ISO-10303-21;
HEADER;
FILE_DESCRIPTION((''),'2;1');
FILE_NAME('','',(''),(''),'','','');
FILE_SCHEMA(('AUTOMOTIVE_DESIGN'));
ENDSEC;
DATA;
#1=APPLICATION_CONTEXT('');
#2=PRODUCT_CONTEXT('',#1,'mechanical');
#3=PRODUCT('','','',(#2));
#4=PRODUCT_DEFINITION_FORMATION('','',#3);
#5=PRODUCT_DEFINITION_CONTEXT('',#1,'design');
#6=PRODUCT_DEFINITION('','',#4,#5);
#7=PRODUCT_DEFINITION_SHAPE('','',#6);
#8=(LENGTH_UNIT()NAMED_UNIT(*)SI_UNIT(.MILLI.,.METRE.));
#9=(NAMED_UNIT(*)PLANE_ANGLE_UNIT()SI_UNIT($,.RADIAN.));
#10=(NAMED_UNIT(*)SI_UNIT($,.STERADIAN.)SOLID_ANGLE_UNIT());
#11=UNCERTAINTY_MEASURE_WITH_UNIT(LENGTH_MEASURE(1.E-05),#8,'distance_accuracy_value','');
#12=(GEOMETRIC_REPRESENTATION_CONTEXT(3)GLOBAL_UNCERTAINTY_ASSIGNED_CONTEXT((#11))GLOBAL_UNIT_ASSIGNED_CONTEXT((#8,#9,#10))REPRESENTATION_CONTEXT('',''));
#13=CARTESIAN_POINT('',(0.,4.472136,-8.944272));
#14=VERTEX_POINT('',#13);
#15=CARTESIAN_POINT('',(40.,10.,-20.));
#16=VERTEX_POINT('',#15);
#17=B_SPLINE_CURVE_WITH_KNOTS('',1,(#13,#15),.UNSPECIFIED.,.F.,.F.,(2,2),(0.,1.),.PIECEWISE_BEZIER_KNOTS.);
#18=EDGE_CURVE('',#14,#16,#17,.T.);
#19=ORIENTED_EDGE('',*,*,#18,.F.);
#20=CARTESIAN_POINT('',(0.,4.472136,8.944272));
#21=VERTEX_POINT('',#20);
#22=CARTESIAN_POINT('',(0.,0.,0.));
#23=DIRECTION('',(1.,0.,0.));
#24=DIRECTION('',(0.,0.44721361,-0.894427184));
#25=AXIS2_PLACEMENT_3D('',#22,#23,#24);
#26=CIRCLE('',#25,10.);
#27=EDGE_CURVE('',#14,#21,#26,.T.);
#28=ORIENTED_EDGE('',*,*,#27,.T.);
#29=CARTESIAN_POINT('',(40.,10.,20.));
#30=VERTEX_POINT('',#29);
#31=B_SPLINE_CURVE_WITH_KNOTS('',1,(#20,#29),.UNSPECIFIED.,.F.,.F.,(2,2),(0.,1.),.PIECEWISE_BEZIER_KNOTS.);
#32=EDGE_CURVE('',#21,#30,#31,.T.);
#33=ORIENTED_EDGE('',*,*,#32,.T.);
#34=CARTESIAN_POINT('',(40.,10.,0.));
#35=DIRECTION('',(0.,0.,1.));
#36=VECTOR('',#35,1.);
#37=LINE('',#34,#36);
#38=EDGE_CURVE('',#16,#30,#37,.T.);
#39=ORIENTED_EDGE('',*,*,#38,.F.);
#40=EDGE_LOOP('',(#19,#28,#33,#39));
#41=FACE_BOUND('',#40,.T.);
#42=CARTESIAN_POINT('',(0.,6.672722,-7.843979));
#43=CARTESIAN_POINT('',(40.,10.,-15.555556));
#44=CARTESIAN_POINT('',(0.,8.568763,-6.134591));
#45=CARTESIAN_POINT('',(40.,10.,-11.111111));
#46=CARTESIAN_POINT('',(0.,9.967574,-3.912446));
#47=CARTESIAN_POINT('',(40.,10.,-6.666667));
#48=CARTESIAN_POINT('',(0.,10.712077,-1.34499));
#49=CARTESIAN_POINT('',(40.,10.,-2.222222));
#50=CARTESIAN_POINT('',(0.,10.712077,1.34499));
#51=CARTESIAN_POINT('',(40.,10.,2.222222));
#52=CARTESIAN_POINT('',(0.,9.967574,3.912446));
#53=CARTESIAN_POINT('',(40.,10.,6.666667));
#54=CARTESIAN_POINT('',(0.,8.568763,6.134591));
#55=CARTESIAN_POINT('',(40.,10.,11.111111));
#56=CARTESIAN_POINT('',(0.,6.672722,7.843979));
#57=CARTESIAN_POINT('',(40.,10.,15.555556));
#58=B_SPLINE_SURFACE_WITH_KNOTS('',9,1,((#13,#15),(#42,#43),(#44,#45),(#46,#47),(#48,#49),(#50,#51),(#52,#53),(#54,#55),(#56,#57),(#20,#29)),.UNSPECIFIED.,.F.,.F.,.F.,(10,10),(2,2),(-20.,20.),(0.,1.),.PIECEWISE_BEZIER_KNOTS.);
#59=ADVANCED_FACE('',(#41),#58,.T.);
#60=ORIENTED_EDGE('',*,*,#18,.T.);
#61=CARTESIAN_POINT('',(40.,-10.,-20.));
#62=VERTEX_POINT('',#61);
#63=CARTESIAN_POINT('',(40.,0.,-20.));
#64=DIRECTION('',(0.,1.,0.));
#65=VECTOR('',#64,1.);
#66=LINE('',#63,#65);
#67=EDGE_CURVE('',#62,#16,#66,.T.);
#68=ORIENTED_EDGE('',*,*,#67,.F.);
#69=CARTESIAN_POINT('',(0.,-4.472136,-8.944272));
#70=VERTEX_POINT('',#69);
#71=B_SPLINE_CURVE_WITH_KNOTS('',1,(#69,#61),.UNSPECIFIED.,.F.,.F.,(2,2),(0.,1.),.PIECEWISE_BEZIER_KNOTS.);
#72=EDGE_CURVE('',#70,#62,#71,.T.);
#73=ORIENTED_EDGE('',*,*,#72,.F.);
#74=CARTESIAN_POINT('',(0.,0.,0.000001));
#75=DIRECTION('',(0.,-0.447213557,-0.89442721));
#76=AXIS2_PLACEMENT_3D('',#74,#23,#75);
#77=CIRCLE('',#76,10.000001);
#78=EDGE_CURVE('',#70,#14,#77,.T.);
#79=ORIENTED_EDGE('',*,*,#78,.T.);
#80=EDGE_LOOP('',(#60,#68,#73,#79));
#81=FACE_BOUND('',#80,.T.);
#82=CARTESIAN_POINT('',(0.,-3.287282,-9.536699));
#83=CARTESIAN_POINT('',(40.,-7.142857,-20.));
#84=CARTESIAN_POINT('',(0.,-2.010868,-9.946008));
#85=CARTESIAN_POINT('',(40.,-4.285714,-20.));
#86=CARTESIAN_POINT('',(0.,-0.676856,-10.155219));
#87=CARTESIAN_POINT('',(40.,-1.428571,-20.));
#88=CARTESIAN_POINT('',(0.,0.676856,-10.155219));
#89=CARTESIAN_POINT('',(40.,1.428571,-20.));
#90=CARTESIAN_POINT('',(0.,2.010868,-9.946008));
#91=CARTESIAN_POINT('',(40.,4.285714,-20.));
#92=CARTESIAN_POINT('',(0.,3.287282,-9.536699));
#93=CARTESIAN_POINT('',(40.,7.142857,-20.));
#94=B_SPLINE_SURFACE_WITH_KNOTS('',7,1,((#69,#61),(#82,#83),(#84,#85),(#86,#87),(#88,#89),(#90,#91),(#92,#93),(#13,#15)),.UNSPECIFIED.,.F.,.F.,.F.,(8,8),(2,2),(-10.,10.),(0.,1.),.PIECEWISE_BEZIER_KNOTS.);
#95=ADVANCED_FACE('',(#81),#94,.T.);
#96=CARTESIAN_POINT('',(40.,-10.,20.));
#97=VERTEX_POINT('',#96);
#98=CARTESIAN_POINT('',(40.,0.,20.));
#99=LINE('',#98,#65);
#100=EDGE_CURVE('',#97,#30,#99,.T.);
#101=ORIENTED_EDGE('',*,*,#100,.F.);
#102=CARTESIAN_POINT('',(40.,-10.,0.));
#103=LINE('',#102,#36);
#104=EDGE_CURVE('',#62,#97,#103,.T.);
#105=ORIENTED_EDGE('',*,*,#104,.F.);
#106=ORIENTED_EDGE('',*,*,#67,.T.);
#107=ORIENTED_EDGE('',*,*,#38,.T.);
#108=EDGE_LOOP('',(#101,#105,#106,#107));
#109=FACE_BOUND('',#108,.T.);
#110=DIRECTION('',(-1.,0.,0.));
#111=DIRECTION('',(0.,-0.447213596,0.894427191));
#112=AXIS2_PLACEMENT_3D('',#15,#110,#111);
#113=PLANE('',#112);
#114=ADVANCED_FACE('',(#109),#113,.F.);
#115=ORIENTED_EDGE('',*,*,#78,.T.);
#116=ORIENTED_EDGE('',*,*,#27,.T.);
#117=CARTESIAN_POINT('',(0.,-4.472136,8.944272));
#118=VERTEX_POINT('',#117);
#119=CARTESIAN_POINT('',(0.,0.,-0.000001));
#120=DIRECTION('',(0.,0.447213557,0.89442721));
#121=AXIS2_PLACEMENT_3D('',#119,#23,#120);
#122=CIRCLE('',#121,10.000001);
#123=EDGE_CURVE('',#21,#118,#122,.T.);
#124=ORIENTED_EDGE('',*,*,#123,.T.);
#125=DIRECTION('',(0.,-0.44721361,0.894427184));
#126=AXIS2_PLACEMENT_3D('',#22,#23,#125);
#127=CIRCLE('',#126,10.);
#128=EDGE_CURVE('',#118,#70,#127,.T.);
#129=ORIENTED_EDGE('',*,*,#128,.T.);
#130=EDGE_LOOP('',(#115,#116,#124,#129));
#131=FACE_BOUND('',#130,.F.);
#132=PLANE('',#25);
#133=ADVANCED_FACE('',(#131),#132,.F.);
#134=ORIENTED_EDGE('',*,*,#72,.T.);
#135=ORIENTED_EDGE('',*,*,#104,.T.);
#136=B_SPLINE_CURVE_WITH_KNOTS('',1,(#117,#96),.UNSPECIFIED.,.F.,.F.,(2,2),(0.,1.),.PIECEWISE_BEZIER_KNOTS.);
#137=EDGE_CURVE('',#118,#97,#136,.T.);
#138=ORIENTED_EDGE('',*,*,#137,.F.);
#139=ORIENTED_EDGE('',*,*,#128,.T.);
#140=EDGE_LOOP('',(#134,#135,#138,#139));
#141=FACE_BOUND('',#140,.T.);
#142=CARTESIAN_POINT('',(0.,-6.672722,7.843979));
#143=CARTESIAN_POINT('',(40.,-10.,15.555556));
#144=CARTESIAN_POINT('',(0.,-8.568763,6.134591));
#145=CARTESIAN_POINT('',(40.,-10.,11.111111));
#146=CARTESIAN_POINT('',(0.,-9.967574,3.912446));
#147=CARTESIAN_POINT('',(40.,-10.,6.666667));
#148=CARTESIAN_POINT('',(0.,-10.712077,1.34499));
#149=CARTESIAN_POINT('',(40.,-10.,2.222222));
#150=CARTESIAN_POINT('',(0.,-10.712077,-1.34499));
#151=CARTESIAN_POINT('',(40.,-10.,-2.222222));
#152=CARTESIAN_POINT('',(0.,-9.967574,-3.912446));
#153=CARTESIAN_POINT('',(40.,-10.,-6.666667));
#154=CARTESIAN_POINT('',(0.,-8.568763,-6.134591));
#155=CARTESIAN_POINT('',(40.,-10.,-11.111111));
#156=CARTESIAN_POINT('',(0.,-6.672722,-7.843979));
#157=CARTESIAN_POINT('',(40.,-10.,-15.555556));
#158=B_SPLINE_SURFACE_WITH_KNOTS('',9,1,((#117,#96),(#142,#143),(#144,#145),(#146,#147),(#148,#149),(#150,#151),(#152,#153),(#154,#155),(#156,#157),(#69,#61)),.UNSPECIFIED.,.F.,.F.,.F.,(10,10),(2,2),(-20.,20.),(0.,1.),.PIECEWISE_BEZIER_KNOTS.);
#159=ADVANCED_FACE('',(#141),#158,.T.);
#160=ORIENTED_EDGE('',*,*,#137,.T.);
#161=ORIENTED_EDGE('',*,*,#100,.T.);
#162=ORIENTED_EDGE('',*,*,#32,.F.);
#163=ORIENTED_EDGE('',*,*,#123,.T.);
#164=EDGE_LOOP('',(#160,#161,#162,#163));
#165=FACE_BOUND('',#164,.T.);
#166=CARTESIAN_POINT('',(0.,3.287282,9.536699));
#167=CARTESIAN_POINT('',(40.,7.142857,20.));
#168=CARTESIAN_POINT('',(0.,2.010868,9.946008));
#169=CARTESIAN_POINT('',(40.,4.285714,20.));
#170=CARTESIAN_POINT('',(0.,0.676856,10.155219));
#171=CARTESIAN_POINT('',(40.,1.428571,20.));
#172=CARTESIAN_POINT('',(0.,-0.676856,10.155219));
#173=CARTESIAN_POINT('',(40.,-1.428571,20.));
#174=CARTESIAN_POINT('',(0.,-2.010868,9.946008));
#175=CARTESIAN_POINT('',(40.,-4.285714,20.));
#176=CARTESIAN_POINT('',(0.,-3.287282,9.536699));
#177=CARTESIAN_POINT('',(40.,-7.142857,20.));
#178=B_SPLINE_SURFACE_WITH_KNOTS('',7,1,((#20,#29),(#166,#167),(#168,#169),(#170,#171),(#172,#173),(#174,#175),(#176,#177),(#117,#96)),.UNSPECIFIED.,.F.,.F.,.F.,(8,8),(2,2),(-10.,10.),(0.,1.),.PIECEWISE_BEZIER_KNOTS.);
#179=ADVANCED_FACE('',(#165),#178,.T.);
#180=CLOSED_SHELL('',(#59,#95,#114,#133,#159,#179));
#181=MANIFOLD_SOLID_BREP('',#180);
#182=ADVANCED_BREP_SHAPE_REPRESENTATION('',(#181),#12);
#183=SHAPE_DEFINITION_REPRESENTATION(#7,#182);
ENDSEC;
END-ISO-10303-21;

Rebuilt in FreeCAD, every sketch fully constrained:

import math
import FreeCAD as App
import Part
import Sketcher
Q = App.Units.Quantity


def add_polygon(sketch, points):
    """Adds a closed chain of lines whose ends are joined by coincident constraints."""
    first, n = sketch.GeometryCount, len(points)
    for a, b in zip(points, points[1:] + points[:1]):
        sketch.addGeometry(Part.LineSegment(App.Vector(*a, 0), App.Vector(*b, 0)), False)
    for i in range(n):
        sketch.addConstraint(Sketcher.Constraint("Coincident", first + i, 2, first + (i + 1) % n, 1))

doc = App.newDocument("Part")
body = doc.addObject("PartDesign::Body", "Body")

# Sketch on YZ plane
sketch1 = body.newObject("Sketcher::SketchObject", "Sketch")
sketch1.AttachmentSupport = (doc.getObject("YZ_Plane"), [""])
sketch1.MapMode = "FlatFace"
sketch1.addGeometry(Part.ArcOfCircle(Part.Circle(App.Vector(0, 0, 0), App.Vector(0, 0, 1), 10), math.radians(-63), math.radians(63)), False)
sketch1.addGeometry(Part.ArcOfCircle(Part.Circle(App.Vector(0, 0, 0), App.Vector(0, 0, 1), 10), math.radians(63), math.radians(117)), False)
sketch1.addGeometry(Part.ArcOfCircle(Part.Circle(App.Vector(0, 0, 0), App.Vector(0, 0, 1), 10), math.radians(117), math.radians(243)), False)
sketch1.addGeometry(Part.ArcOfCircle(Part.Circle(App.Vector(0, 0, 0), App.Vector(0, 0, 1), 10), math.radians(-117), math.radians(-63)), False)
sketch1.addConstraint(Sketcher.Constraint("Tangent", 0, 2, 1, 1))
sketch1.addConstraint(Sketcher.Constraint("Tangent", 1, 2, 2, 1))
sketch1.addConstraint(Sketcher.Constraint("Tangent", 2, 2, 3, 1))
sketch1.addConstraint(Sketcher.Constraint("Tangent", 3, 2, 0, 1))
sketch1.addConstraint(Sketcher.Constraint("Coincident", 0, 3, -1, 1))
sketch1.addConstraint(Sketcher.Constraint("Equal", 0, 1))
sketch1.addConstraint(Sketcher.Constraint("Horizontal", 0, 2, 1, 2))
sketch1.addConstraint(Sketcher.Constraint("Horizontal", 2, 2, 3, 2))
sketch1.addConstraint(Sketcher.Constraint("Vertical", 1, 2, 2, 2))
sketch1.addConstraint(Sketcher.Constraint("Radius", 0, Q("10 mm")))
sketch1.addConstraint(Sketcher.Constraint("DistanceY", -1, 1, 0, 2, Q("8.944272 mm")))

# Sketch on YZ plane
sketch2 = body.newObject("Sketcher::SketchObject", "Sketch001")
sketch2.AttachmentSupport = (doc.getObject("YZ_Plane"), [""])
sketch2.MapMode = "FlatFace"
sketch2.AttachmentOffset = App.Placement(App.Vector(0, 0, 40), App.Rotation())
add_polygon(sketch2, [(-10, 20), (-10, -20), (10, -20), (10, 20)])  # lines 0-3
sketch2.addConstraint(Sketcher.Constraint("Vertical", 0))
sketch2.addConstraint(Sketcher.Constraint("Horizontal", 1))
sketch2.addConstraint(Sketcher.Constraint("Vertical", 2))
sketch2.addConstraint(Sketcher.Constraint("Horizontal", 3))
sketch2.addConstraint(Sketcher.Constraint("Symmetric", 0, 2, 2, 2, -1, 1))
sketch2.addConstraint(Sketcher.Constraint("DistanceX", 1, 1, 1, 2, Q("20 mm")))
sketch2.addConstraint(Sketcher.Constraint("DistanceY", 0, 2, 0, 1, Q("40 mm")))

additiveloft = body.newObject("PartDesign::AdditiveLoft", "AdditiveLoft")
additiveloft.Profile = sketch1
additiveloft.Sections = [sketch2]

doc.recompute()
